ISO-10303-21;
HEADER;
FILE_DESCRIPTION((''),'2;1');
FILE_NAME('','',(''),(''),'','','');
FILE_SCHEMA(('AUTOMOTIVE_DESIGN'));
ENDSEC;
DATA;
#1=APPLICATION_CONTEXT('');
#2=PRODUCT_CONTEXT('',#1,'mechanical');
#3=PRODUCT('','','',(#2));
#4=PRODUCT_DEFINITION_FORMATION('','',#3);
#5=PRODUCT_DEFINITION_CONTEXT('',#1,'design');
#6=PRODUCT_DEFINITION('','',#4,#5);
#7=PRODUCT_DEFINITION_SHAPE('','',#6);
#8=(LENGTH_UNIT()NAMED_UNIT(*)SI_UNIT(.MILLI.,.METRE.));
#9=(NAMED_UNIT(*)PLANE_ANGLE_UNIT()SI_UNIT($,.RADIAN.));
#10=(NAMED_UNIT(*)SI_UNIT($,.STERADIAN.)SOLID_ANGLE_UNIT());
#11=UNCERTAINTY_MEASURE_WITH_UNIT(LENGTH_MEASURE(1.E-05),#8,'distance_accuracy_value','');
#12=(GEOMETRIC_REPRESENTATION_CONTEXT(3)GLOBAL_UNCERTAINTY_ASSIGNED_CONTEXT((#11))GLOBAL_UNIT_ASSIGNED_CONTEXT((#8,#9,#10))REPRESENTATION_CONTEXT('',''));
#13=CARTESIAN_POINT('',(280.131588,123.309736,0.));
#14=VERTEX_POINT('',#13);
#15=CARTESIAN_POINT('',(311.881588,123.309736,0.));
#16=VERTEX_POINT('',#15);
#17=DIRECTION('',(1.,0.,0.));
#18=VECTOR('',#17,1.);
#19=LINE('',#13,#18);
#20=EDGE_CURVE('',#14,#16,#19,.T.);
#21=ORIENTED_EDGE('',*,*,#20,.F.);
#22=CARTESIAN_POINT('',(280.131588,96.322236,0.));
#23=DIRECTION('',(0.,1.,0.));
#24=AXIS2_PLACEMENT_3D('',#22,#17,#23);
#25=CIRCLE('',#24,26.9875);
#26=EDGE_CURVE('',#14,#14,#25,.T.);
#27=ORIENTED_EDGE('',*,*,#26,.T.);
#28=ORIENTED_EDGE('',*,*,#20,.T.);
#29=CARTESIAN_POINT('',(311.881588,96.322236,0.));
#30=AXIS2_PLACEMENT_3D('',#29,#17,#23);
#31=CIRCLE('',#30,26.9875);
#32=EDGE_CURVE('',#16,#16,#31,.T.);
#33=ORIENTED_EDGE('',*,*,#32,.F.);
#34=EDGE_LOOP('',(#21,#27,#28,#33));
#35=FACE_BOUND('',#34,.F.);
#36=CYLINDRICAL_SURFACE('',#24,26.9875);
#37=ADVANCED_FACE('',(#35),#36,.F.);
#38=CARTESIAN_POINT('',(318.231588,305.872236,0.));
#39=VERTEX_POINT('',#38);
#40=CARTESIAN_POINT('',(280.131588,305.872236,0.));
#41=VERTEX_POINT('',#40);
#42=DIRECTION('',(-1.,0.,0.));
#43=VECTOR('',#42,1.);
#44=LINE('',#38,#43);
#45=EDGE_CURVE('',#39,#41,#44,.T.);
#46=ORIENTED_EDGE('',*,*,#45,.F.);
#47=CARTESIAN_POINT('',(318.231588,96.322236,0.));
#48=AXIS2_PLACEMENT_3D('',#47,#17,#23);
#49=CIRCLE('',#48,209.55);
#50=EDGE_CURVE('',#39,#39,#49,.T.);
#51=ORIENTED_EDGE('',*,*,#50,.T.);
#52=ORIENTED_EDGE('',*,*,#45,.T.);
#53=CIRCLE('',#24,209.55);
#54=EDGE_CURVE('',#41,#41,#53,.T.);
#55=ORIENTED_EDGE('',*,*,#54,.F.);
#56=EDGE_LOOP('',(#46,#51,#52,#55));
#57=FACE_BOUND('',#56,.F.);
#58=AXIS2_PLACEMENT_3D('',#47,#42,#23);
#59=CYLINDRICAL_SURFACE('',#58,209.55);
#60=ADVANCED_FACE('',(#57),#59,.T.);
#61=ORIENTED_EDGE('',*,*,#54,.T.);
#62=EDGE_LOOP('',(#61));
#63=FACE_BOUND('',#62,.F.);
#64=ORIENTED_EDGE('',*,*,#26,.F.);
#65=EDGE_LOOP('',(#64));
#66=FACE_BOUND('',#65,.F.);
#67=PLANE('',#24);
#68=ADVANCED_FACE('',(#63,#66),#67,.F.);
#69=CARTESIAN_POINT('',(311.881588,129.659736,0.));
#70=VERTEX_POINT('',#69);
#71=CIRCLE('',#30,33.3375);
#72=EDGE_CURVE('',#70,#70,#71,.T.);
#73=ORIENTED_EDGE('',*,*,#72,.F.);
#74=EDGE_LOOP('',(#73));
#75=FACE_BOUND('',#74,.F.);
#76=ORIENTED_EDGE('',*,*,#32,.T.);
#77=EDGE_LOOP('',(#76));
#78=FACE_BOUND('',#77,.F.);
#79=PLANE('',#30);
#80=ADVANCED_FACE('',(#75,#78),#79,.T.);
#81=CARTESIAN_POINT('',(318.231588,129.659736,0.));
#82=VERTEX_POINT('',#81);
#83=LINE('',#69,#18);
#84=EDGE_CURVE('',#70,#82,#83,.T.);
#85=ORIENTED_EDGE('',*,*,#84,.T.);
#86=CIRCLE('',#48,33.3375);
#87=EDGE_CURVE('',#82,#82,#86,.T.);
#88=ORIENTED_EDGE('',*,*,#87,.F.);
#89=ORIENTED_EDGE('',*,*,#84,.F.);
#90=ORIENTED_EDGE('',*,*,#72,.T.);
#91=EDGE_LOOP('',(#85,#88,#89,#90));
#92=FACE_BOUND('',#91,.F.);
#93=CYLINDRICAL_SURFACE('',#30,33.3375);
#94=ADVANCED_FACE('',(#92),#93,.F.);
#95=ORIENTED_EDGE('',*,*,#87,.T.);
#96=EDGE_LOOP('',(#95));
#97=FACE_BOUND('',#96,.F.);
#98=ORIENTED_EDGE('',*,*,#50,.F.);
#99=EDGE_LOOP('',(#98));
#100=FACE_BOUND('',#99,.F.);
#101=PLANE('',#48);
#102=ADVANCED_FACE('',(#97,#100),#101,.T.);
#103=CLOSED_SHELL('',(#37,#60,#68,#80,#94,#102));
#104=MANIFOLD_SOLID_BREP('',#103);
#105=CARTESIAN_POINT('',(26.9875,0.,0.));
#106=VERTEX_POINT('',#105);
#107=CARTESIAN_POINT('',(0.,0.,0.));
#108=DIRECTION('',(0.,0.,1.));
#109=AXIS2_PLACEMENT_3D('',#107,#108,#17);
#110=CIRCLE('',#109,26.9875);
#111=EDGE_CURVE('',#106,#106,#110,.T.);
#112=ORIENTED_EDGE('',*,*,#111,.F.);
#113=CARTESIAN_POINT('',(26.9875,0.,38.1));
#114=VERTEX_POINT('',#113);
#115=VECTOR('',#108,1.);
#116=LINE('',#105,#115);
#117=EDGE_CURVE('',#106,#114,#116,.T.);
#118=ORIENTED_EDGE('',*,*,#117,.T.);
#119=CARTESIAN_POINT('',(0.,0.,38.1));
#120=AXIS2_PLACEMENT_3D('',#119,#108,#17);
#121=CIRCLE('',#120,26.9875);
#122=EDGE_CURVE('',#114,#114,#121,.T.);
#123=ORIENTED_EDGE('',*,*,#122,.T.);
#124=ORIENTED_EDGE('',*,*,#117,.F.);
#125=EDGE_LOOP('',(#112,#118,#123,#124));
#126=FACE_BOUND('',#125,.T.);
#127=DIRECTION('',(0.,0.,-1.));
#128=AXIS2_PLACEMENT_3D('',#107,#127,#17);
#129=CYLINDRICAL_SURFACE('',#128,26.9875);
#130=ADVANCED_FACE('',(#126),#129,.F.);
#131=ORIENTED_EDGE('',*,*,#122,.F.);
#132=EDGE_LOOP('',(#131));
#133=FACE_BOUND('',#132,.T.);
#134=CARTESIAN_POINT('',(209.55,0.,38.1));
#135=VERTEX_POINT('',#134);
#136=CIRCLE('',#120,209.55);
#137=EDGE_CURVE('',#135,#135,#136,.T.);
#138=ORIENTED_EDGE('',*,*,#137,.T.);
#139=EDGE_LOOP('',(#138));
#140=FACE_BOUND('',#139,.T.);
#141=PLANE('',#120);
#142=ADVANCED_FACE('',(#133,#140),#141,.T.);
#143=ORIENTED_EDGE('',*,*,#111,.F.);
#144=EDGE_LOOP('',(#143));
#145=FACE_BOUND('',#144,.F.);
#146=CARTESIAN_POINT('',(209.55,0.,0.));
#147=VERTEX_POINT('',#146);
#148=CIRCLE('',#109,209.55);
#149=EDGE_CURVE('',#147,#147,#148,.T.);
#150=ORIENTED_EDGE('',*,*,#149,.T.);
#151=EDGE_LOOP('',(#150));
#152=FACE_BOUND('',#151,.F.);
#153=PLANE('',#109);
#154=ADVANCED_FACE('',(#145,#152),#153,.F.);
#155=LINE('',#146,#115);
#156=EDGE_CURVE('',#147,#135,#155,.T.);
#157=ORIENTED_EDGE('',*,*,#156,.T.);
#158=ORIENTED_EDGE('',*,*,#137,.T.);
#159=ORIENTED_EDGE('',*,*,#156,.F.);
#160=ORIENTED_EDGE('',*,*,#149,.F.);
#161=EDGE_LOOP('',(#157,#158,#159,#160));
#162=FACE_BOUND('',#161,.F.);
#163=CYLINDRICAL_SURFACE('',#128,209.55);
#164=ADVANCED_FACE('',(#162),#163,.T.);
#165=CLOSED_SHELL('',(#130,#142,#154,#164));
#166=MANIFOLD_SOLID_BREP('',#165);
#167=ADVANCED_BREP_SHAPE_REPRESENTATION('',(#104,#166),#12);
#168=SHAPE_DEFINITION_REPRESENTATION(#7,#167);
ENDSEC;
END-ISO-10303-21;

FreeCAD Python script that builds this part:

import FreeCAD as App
import Part
import Sketcher
Q = App.Units.Quantity


def add_polygon(sketch, points):
    """Adds a closed chain of lines whose ends are joined by coincident constraints."""
    first, n = sketch.GeometryCount, len(points)
    for a, b in zip(points, points[1:] + points[:1]):
        sketch.addGeometry(Part.LineSegment(App.Vector(*a, 0), App.Vector(*b, 0)), False)
    for i in range(n):
        sketch.addConstraint(Sketcher.Constraint("Coincident", first + i, 2, first + (i + 1) % n, 1))

doc = App.newDocument("Part")
body = doc.addObject("PartDesign::Body", "Body")

# Sketch on XY plane
sketch1 = body.newObject("Sketcher::SketchObject", "Sketch")
sketch1.AttachmentSupport = (doc.getObject("XY_Plane"), [""])
sketch1.MapMode = "FlatFace"
sketch1.addGeometry([
    Part.Circle(App.Vector(0, 0, 0), App.Vector(0, 0, 1), 210),
    Part.Circle(App.Vector(0, 0, 0), App.Vector(0, 0, 1), 27),
], False)
sketch1.addConstraint([
    Sketcher.Constraint("Coincident", 0, 3, -1, 1),
    Sketcher.Constraint("Coincident", 1, 3, -1, 1),
    Sketcher.Constraint("Diameter", 0, Q("16.5 in")),
    Sketcher.Constraint("Diameter", 1, Q("2.125 in")),
])
pad1 = body.newObject("PartDesign::Pad", "Pad")
pad1.Profile = sketch1
pad1.Length = Q("1.5 in")
body2 = doc.addObject("PartDesign::Body", "Body001")

# Sketch on XY plane
sketch2 = body2.newObject("Sketcher::SketchObject", "Sketch001")
sketch2.AttachmentSupport = (doc.getObject("XY_Plane001"), [""])
sketch2.MapMode = "FlatFace"
add_polygon(sketch2, [(280, 123), (312, 123), (312, 130), (318, 130), (318, 306), (280, 306)])  # lines 0-5
sketch2.addGeometry(Part.LineSegment(App.Vector(280, 96, 0), App.Vector(318, 96, 0)), True)  # axis
sketch2.addConstraint([
    Sketcher.Constraint("Horizontal", 0),
    Sketcher.Constraint("Vertical", 1),
    Sketcher.Constraint("Horizontal", 2),
    Sketcher.Constraint("Vertical", 3),
    Sketcher.Constraint("Horizontal", 4),
    Sketcher.Constraint("Vertical", 5),
    Sketcher.Constraint("Horizontal", 6),
    Sketcher.Constraint("Vertical", 5, 2, 6, 1),
    Sketcher.Constraint("Vertical", 3, 2, 6, 2),
    Sketcher.Constraint("Equal", 2, 1),
    Sketcher.Constraint("DistanceX", 4, 2, 4, 1, Q("1.5 in")),
    Sketcher.Constraint("DistanceX", 0, 1, 0, 2, Q("1.25 in")),
    Sketcher.Constraint("DistanceY", 3, 1, 3, 2, Q("6.9375 in")),
    Sketcher.Constraint("DistanceY", 6, 1, 4, 2, Q("8.25 in")),
    Sketcher.Constraint("DistanceX", -1, 1, 0, 2, 311.881588),
    Sketcher.Constraint("DistanceY", -1, 1, 0, 2, 123.309736),
])
revolution = body2.newObject("PartDesign::Revolution", "Revolution")
revolution.Profile = sketch2
revolution.ReferenceAxis = (sketch2, ["Axis0"])
revolution.Angle = 360

doc.recompute()
